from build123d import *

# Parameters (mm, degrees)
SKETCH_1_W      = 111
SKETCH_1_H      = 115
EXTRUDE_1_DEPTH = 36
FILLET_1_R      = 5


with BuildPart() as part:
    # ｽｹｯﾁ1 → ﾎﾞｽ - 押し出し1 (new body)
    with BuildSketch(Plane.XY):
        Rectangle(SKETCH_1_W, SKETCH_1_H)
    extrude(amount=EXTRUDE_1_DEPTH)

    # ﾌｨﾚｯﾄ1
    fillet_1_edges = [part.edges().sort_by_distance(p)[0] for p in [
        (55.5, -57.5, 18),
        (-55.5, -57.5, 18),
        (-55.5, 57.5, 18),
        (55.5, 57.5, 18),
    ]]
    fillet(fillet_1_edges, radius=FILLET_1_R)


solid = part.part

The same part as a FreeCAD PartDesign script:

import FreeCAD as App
import Part
import Sketcher

V = App.Vector
Q = App.Units.Quantity


def edges_at(feature, points):
    """Names of the edges that pass closest to the given points."""
    edges = feature.Shape.Edges
    near = lambda p: min(range(len(edges)), key=lambda i: edges[i].distToShape(Part.Vertex(*p))[0])
    return sorted({f"Edge{near(p) + 1}" for p in points})

doc = App.newDocument("Part")
body = doc.addObject("PartDesign::Body", "Body")

sketch1 = body.newObject("Sketcher::SketchObject", "Sketch")
sketch1.AttachmentSupport = (doc.getObject("XY_Plane"), [""])
sketch1.MapMode = "FlatFace"
sketch1.addGeometry([
    Part.LineSegment(V(-56, 58, 0), V(-56, -58, 0)),
    Part.LineSegment(V(-56, -58, 0), V(56, -58, 0)),
    Part.LineSegment(V(56, -58, 0), V(56, 58, 0)),
    Part.LineSegment(V(56, 58, 0), V(-56, 58, 0)),
], False)
sketch1.addConstraint([
    Sketcher.Constraint("Coincident", 0, 2, 1, 1),
    Sketcher.Constraint("Coincident", 1, 2, 2, 1),
    Sketcher.Constraint("Coincident", 2, 2, 3, 1),
    Sketcher.Constraint("Coincident", 3, 2, 0, 1),
    Sketcher.Constraint("Vertical", 0),
    Sketcher.Constraint("Horizontal", 1),
    Sketcher.Constraint("Vertical", 2),
    Sketcher.Constraint("Horizontal", 3),
    Sketcher.Constraint("Symmetric", 0, 2, 2, 2, -1, 1),
    Sketcher.Constraint("DistanceX", 1, 1, 1, 2, Q("111 mm")),
    Sketcher.Constraint("DistanceY", 0, 2, 0, 1, Q("115 mm")),
])
pad1 = body.newObject("PartDesign::Pad", "Pad")
pad1.Profile = sketch1
pad1.Length = 36
doc.recompute()

fillet = body.newObject("PartDesign::Fillet", "Fillet")
fillet.Base = (pad1, edges_at(pad1, [
    (55.5, -57.5, 18),
    (-55.5, -57.5, 18),
    (-55.5, 57.5, 18),
    (55.5, 57.5, 18),
]))
fillet.Radius = 5

doc.recompute()
